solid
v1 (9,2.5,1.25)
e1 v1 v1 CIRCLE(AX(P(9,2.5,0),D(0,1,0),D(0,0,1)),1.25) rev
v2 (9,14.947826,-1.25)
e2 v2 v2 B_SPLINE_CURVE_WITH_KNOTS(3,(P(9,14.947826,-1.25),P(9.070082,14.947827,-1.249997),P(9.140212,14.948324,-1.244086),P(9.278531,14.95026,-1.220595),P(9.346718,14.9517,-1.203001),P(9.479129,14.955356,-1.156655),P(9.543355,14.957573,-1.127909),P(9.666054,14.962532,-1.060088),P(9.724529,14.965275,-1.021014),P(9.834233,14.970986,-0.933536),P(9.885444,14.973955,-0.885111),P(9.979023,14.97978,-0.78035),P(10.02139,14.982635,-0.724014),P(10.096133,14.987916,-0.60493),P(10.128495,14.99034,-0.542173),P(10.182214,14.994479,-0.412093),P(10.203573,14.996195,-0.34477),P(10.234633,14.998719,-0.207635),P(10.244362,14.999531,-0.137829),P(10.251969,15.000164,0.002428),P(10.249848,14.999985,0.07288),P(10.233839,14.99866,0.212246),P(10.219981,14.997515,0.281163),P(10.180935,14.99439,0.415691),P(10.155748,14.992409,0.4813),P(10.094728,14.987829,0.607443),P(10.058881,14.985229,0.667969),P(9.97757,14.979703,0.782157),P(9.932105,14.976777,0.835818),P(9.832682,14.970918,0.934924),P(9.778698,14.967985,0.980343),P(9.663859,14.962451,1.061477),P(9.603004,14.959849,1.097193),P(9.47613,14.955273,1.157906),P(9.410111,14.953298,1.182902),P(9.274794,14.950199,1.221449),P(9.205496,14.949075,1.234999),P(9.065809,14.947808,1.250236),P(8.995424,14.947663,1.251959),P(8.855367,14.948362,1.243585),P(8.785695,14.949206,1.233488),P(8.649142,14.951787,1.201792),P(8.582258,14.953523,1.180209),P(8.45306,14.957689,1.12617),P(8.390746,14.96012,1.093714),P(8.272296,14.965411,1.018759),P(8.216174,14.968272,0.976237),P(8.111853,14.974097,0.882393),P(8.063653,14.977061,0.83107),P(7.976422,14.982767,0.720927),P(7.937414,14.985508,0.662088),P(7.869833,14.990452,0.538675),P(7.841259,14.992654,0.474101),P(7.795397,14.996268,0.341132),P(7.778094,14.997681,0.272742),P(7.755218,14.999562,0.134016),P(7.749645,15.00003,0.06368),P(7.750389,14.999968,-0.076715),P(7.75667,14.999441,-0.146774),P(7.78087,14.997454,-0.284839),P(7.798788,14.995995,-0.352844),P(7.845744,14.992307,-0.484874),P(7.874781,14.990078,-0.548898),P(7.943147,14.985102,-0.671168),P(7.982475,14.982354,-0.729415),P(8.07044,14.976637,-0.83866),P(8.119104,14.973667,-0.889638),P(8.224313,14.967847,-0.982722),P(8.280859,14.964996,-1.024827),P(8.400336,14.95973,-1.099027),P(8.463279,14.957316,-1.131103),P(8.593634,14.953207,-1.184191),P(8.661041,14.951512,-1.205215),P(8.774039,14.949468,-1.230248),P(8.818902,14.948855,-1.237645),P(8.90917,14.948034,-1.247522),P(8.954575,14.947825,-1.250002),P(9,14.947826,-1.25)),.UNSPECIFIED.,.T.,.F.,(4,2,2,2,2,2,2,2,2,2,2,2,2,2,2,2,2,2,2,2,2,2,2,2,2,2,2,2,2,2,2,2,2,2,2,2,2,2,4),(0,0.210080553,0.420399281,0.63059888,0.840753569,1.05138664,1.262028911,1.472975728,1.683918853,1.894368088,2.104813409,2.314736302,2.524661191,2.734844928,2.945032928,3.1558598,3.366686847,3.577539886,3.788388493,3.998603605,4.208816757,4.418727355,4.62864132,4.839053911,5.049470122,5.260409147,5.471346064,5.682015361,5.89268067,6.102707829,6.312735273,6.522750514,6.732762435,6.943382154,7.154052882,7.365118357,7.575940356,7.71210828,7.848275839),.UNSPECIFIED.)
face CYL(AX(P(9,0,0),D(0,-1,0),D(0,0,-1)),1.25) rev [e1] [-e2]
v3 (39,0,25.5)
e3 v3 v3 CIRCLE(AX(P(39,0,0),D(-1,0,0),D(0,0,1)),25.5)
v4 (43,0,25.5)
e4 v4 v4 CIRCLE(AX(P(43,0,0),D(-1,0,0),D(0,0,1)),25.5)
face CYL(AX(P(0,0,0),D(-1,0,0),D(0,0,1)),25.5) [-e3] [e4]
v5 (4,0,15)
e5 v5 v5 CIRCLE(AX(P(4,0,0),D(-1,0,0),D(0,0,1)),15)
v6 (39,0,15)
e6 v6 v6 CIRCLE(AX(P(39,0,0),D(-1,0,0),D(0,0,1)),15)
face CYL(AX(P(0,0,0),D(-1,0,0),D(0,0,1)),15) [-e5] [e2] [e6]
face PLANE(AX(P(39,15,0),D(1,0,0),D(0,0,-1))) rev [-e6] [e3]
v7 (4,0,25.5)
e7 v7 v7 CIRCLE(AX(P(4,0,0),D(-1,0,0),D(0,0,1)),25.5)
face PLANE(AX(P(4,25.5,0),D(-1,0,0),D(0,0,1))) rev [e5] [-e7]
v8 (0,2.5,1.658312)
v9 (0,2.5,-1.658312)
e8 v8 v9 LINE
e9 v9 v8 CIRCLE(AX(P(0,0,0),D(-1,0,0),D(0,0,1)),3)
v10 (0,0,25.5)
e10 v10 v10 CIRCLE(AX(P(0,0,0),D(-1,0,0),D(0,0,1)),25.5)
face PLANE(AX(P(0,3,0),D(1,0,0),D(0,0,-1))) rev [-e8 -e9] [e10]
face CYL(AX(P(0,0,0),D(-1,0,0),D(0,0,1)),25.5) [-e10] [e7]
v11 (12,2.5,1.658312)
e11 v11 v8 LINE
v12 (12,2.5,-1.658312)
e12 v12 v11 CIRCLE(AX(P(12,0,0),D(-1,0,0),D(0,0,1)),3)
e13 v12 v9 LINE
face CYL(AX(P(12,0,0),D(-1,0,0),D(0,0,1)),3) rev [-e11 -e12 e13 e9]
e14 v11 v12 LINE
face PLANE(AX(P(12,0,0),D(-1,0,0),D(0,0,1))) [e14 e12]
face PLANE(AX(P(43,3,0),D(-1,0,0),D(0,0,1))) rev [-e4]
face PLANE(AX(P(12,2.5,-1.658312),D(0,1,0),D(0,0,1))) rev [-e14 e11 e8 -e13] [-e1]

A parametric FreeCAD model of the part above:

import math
import FreeCAD as App
import Part
import Sketcher

V = App.Vector


def add_polygon(sketch, points):
    """Adds a closed chain of lines whose ends are joined by coincident constraints."""
    first, n = sketch.GeometryCount, len(points)
    for a, b in zip(points, points[1:] + points[:1]):
        sketch.addGeometry(Part.LineSegment(App.Vector(*a, 0), App.Vector(*b, 0)), False)
    for i in range(n):
        sketch.addConstraint(Sketcher.Constraint("Coincident", first + i, 2, first + (i + 1) % n, 1))

doc = App.newDocument("Part")
body = doc.addObject("PartDesign::Body", "Body")

# Sketch on XY plane
sketch1 = doc.addObject("Sketcher::SketchObject", "Sketch")
body.addObject(sketch1)
sketch1.AttachmentSupport = (doc.XY_Plane, [""])
sketch1.MapMode = "FlatFace"
add_polygon(sketch1, [(0, 25.5), (0, 0), (43, 0), (43, 25.5), (39, 25.5), (39, 15), (4, 15), (4, 25.5)])  # lines 0-7
sketch1.addConstraint(Sketcher.Constraint("Vertical", 0))
sketch1.addConstraint(Sketcher.Constraint("Horizontal", 1))
sketch1.addConstraint(Sketcher.Constraint("Vertical", 2))
sketch1.addConstraint(Sketcher.Constraint("Horizontal", 3))
sketch1.addConstraint(Sketcher.Constraint("Vertical", 4))
sketch1.addConstraint(Sketcher.Constraint("Horizontal", 5))
sketch1.addConstraint(Sketcher.Constraint("Vertical", 6))
sketch1.addConstraint(Sketcher.Constraint("Horizontal", 7))
sketch1.addConstraint(Sketcher.Constraint("Coincident", 0, 2, -1, 1))
sketch1.addConstraint(Sketcher.Constraint("Horizontal", 3, 2, 6, 2))
sketch1.addConstraint(Sketcher.Constraint("Equal", 3, 7))
sketch1.addConstraint(Sketcher.Constraint("DistanceX", 1, 1, 1, 2, 43.0))
sketch1.addConstraint(Sketcher.Constraint("DistanceX", 3, 2, 3, 1, 4.0))
sketch1.addConstraint(Sketcher.Constraint("DistanceY", 0, 2, 0, 1, 25.5))
sketch1.addConstraint(Sketcher.Constraint("DistanceY", 4, 2, 4, 1, 10.5))
revolution = doc.addObject("PartDesign::Revolution", "Revolution")
body.addObject(revolution)
revolution.Profile = sketch1
revolution.ReferenceAxis = (sketch1, ["H_Axis"])
revolution.Angle = 360

# Sketch on YZ plane
sketch2 = doc.addObject("Sketcher::SketchObject", "Sketch001")
body.addObject(sketch2)
sketch2.AttachmentSupport = (doc.YZ_Plane, [""])
sketch2.MapMode = "FlatFace"
sketch2.AttachmentOffset = App.Placement(V(0, 0, 9), App.Rotation())
add_polygon(sketch2, [(15, 0), (0, 0), (0, -1.25), (15, -1.25)])  # lines 0-3
sketch2.addConstraint(Sketcher.Constraint("Horizontal", 0))
sketch2.addConstraint(Sketcher.Constraint("Vertical", 1))
sketch2.addConstraint(Sketcher.Constraint("Horizontal", 2))
sketch2.addConstraint(Sketcher.Constraint("Vertical", 3))
sketch2.addConstraint(Sketcher.Constraint("Coincident", 0, 2, -1, 1))
sketch2.addConstraint(Sketcher.Constraint("DistanceX", 0, 2, 0, 1, 15.0))
sketch2.addConstraint(Sketcher.Constraint("DistanceY", 1, 2, 1, 1, 1.25))
groove = doc.addObject("PartDesign::Groove", "Groove")
body.addObject(groove)
groove.Profile = sketch2
groove.ReferenceAxis = (sketch2, ["H_Axis"])
groove.Angle = 360

# Sketch on YZ plane
sketch3 = doc.addObject("Sketcher::SketchObject", "Sketch002")
body.addObject(sketch3)
sketch3.AttachmentSupport = (doc.YZ_Plane, [""])
sketch3.MapMode = "FlatFace"
sketch3.addGeometry(Part.LineSegment(V(2.5, 1.658312, 0), V(2.5, -1.658312, 0)), False)
sketch3.addGeometry(Part.ArcOfCircle(Part.Circle(V(0, 0, 0), V(0, 0, 1), 3), math.radians(33.55731), math.radians(326.44269)), False)
sketch3.addConstraint(Sketcher.Constraint("Coincident", 0, 1, 1, 1))
sketch3.addConstraint(Sketcher.Constraint("Coincident", 1, 2, 0, 2))
sketch3.addConstraint(Sketcher.Constraint("Vertical", 0))
sketch3.addConstraint(Sketcher.Constraint("Coincident", 1, 3, -1, 1))
sketch3.addConstraint(Sketcher.Constraint("Radius", 1, 3.0))
sketch3.addConstraint(Sketcher.Constraint("DistanceX", -1, 1, 0, 1, 2.5))
pocket1 = doc.addObject("PartDesign::Pocket", "Pocket")
body.addObject(pocket1)
pocket1.Profile = sketch3
pocket1.Length = 12
pocket1.Reversed = True

doc.recompute()
